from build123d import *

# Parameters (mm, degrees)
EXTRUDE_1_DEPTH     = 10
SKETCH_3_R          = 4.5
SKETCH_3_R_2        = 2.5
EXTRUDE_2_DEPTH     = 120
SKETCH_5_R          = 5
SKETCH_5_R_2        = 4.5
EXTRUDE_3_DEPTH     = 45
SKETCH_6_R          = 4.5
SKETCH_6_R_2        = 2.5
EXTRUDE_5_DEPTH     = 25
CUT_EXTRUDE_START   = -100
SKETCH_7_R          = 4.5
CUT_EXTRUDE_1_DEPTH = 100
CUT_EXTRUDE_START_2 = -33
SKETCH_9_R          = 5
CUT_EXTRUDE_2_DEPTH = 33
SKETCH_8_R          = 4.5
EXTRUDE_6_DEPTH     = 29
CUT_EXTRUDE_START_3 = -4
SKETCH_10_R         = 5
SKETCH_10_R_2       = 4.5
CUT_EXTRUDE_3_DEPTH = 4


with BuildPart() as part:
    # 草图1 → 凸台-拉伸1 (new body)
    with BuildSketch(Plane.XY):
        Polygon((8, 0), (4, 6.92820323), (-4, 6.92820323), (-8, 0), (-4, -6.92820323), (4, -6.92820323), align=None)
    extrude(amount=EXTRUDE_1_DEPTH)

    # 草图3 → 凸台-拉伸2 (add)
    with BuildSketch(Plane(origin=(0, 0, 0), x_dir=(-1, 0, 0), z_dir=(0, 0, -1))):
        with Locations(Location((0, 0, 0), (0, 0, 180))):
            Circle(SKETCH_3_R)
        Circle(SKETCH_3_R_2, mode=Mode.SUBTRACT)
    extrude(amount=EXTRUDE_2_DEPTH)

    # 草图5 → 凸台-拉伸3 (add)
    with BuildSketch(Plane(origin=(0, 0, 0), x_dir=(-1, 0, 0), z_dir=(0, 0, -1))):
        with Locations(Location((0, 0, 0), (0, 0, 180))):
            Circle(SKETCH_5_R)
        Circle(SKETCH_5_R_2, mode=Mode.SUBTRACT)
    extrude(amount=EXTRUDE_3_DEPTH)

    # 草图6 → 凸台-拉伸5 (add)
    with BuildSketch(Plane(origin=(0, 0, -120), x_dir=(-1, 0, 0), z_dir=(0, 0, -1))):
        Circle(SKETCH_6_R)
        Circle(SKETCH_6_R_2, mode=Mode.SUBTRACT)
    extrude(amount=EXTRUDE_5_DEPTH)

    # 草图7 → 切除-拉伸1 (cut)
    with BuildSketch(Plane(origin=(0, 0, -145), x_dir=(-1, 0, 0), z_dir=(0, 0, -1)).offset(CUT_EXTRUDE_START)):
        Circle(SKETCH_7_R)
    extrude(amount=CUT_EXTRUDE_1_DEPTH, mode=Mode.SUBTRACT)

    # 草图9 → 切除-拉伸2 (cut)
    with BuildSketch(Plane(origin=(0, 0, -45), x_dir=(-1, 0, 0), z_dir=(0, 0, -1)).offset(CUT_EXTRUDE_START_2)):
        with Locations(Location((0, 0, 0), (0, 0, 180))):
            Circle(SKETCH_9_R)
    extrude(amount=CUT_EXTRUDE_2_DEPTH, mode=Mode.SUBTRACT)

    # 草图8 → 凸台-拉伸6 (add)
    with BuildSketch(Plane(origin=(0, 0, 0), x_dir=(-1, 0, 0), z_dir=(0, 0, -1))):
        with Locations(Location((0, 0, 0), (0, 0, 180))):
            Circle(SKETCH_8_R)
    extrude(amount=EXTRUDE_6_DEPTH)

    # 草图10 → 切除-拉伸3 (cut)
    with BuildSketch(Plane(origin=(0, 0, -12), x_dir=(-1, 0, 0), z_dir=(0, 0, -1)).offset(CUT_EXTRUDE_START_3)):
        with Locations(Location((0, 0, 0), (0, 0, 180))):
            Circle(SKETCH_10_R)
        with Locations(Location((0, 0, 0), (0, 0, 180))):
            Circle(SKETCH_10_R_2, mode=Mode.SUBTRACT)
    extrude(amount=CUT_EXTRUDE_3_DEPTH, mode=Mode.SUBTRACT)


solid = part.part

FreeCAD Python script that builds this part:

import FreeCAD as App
import Part
import Sketcher

V = App.Vector
Q = App.Units.Quantity

doc = App.newDocument("Part")
params = doc.addObject("Spreadsheet::Sheet", "Params")
for row, (alias, value) in enumerate([
    ("sketch1_width", "8 mm"),
    ("sketch1_length", "8 mm"),
    ("pad1_length", "10 mm"),
    ("sketch2_diameter", "9 mm"),
    ("sketch2_diameter2", "5 mm"),
    ("pad2_length", "120 mm"),
    ("sketch3_diameter", "10 mm"),
    ("sketch3_diameter2", "9 mm"),
    ("pad3_length", "45 mm"),
    ("sketch4_diameter", "9 mm"),
    ("sketch4_diameter2", "5 mm"),
    ("pad4_length", "25 mm"),
    ("sketch5_diameter", "9 mm"),
    ("pocket1_length", "100 mm"),
    ("sketch6_diameter", "10 mm"),
    ("pocket2_length", "33 mm"),
    ("sketch7_diameter", "9 mm"),
    ("pad5_length", "29 mm"),
    ("sketch8_diameter", "10 mm"),
    ("sketch8_diameter2", "9 mm"),
    ("pocket3_length", "4 mm"),
], start=1):
    params.set(f"A{row}", alias)
    params.set(f"B{row}", "=" + value)
    params.setAlias(f"B{row}", alias)

body = doc.addObject("PartDesign::Body", "Body")

sketch1 = body.newObject("Sketcher::SketchObject", "Sketch")
sketch1.AttachmentSupport = (doc.getObject("XY_Plane"), [""])
sketch1.MapMode = "FlatFace"
sketch1.addGeometry([
    Part.LineSegment(V(8, 0, 0), V(4, 6.928203, 0)),
    Part.LineSegment(V(4, 6.928203, 0), V(-4, 6.928203, 0)),
    Part.LineSegment(V(-4, 6.928203, 0), V(-8, 0, 0)),
    Part.LineSegment(V(-8, 0, 0), V(-4, -6.928203, 0)),
    Part.LineSegment(V(-4, -6.928203, 0), V(4, -6.928203, 0)),
    Part.LineSegment(V(4, -6.928203, 0), V(8, 0, 0)),
], False)
sketch1.addConstraint([
    Sketcher.Constraint("Coincident", 0, 2, 1, 1),
    Sketcher.Constraint("Coincident", 1, 2, 2, 1),
    Sketcher.Constraint("Coincident", 2, 2, 3, 1),
    Sketcher.Constraint("Coincident", 3, 2, 4, 1),
    Sketcher.Constraint("Coincident", 4, 2, 5, 1),
    Sketcher.Constraint("Coincident", 5, 2, 0, 1),
    Sketcher.Constraint("Horizontal", 1),
    Sketcher.Constraint("Horizontal", 4),
    Sketcher.Constraint("Symmetric", 0, 2, 3, 2, -1, 1),
    Sketcher.Constraint("Symmetric", 2, 2, 5, 2, -1, 1),
    Sketcher.Constraint("PointOnObject", 2, 2, -1),
    Sketcher.Constraint("Parallel", 2, 5),
    Sketcher.Constraint("Vertical", 1, 2, 3, 2),
    Sketcher.Constraint("DistanceX", 1, 2, 1, 1, 8.0),
    Sketcher.Constraint("Angle", 0, Q("120 deg")),
    Sketcher.Constraint("Distance", 0, 8.0),
])
sketch1.setExpression("Constraints[13]", "Params.sketch1_width")
sketch1.setExpression("Constraints[15]", "Params.sketch1_length")
pad1 = body.newObject("PartDesign::Pad", "Pad")
pad1.Profile = sketch1
pad1.setExpression("Length", "Params.pad1_length")

sketch2 = body.newObject("Sketcher::SketchObject", "Sketch001")
sketch2.AttachmentSupport = (doc.getObject("XY_Plane"), [""])
sketch2.MapMode = "FlatFace"
sketch2.addGeometry([
    Part.Circle(V(0, 0, 0), V(0, 0, 1), 4.5),
    Part.Circle(V(0, 0, 0), V(0, 0, 1), 2.5),
], False)
sketch2.addConstraint([
    Sketcher.Constraint("Coincident", 0, 3, -1, 1),
    Sketcher.Constraint("Coincident", 1, 3, -1, 1),
    Sketcher.Constraint("Diameter", 0, 9.0),
    Sketcher.Constraint("Diameter", 1, 5.0),
])
sketch2.setExpression("Constraints[2]", "Params.sketch2_diameter")
sketch2.setExpression("Constraints[3]", "Params.sketch2_diameter2")
pad2 = body.newObject("PartDesign::Pad", "Pad001")
pad2.Profile = sketch2
pad2.setExpression("Length", "Params.pad2_length")
pad2.Reversed = True

sketch3 = body.newObject("Sketcher::SketchObject", "Sketch002")
sketch3.AttachmentSupport = (doc.getObject("XY_Plane"), [""])
sketch3.MapMode = "FlatFace"
sketch3.addGeometry([
    Part.Circle(V(0, 0, 0), V(0, 0, 1), 5),
    Part.Circle(V(0, 0, 0), V(0, 0, 1), 4.5),
], False)
sketch3.addConstraint([
    Sketcher.Constraint("Coincident", 0, 3, -1, 1),
    Sketcher.Constraint("Coincident", 1, 3, -1, 1),
    Sketcher.Constraint("Diameter", 0, 10.0),
    Sketcher.Constraint("Diameter", 1, 9.0),
])
sketch3.setExpression("Constraints[2]", "Params.sketch3_diameter")
sketch3.setExpression("Constraints[3]", "Params.sketch3_diameter2")
pad3 = body.newObject("PartDesign::Pad", "Pad002")
pad3.Profile = sketch3
pad3.setExpression("Length", "Params.pad3_length")
pad3.Reversed = True

sketch4 = body.newObject("Sketcher::SketchObject", "Sketch003")
sketch4.AttachmentSupport = (doc.getObject("XY_Plane"), [""])
sketch4.MapMode = "FlatFace"
sketch4.AttachmentOffset = App.Placement(V(0, 0, -120), App.Rotation())
sketch4.addGeometry([
    Part.Circle(V(0, 0, 0), V(0, 0, 1), 4.5),
    Part.Circle(V(0, 0, 0), V(0, 0, 1), 2.5),
], False)
sketch4.addConstraint([
    Sketcher.Constraint("Coincident", 0, 3, -1, 1),
    Sketcher.Constraint("Coincident", 1, 3, -1, 1),
    Sketcher.Constraint("Diameter", 0, 9.0),
    Sketcher.Constraint("Diameter", 1, 5.0),
])
sketch4.setExpression("Constraints[2]", "Params.sketch4_diameter")
sketch4.setExpression("Constraints[3]", "Params.sketch4_diameter2")
pad4 = body.newObject("PartDesign::Pad", "Pad003")
pad4.Profile = sketch4
pad4.setExpression("Length", "Params.pad4_length")
pad4.Reversed = True

sketch5 = body.newObject("Sketcher::SketchObject", "Sketch004")
sketch5.AttachmentSupport = (doc.getObject("XY_Plane"), [""])
sketch5.MapMode = "FlatFace"
sketch5.AttachmentOffset = App.Placement(V(0, 0, -45), App.Rotation())
sketch5.addGeometry(Part.Circle(V(0, 0, 0), V(0, 0, 1), 4.5), False)
sketch5.addConstraint([
    Sketcher.Constraint("Coincident", 0, 3, -1, 1),
    Sketcher.Constraint("Diameter", 0, 9.0),
])
sketch5.setExpression("Constraints[1]", "Params.sketch5_diameter")
pocket1 = body.newObject("PartDesign::Pocket", "Pocket")
pocket1.Profile = sketch5
pocket1.setExpression("Length", "Params.pocket1_length")

sketch6 = body.newObject("Sketcher::SketchObject", "Sketch005")
sketch6.AttachmentSupport = (doc.getObject("XY_Plane"), [""])
sketch6.MapMode = "FlatFace"
sketch6.AttachmentOffset = App.Placement(V(0, 0, -12), App.Rotation())
sketch6.addGeometry(Part.Circle(V(0, 0, 0), V(0, 0, 1), 5), False)
sketch6.addConstraint([
    Sketcher.Constraint("Coincident", 0, 3, -1, 1),
    Sketcher.Constraint("Diameter", 0, 10.0),
])
sketch6.setExpression("Constraints[1]", "Params.sketch6_diameter")
pocket2 = body.newObject("PartDesign::Pocket", "Pocket001")
pocket2.Profile = sketch6
pocket2.setExpression("Length", "Params.pocket2_length")

sketch7 = body.newObject("Sketcher::SketchObject", "Sketch006")
sketch7.AttachmentSupport = (doc.getObject("XY_Plane"), [""])
sketch7.MapMode = "FlatFace"
sketch7.addGeometry(Part.Circle(V(0, 0, 0), V(0, 0, 1), 4.5), False)
sketch7.addConstraint([
    Sketcher.Constraint("Coincident", 0, 3, -1, 1),
    Sketcher.Constraint("Diameter", 0, 9.0),
])
sketch7.setExpression("Constraints[1]", "Params.sketch7_diameter")
pad5 = body.newObject("PartDesign::Pad", "Pad004")
pad5.Profile = sketch7
pad5.setExpression("Length", "Params.pad5_length")
pad5.Reversed = True

sketch8 = body.newObject("Sketcher::SketchObject", "Sketch007")
sketch8.AttachmentSupport = (doc.getObject("XY_Plane"), [""])
sketch8.MapMode = "FlatFace"
sketch8.AttachmentOffset = App.Placement(V(0, 0, -8), App.Rotation())
sketch8.addGeometry([
    Part.Circle(V(0, 0, 0), V(0, 0, 1), 5),
    Part.Circle(V(0, 0, 0), V(0, 0, 1), 4.5),
], False)
sketch8.addConstraint([
    Sketcher.Constraint("Coincident", 0, 3, -1, 1),
    Sketcher.Constraint("Coincident", 1, 3, -1, 1),
    Sketcher.Constraint("Diameter", 0, 10.0),
    Sketcher.Constraint("Diameter", 1, 9.0),
])
sketch8.setExpression("Constraints[2]", "Params.sketch8_diameter")
sketch8.setExpression("Constraints[3]", "Params.sketch8_diameter2")
pocket3 = body.newObject("PartDesign::Pocket", "Pocket002")
pocket3.Profile = sketch8
pocket3.setExpression("Length", "Params.pocket3_length")

doc.recompute()
